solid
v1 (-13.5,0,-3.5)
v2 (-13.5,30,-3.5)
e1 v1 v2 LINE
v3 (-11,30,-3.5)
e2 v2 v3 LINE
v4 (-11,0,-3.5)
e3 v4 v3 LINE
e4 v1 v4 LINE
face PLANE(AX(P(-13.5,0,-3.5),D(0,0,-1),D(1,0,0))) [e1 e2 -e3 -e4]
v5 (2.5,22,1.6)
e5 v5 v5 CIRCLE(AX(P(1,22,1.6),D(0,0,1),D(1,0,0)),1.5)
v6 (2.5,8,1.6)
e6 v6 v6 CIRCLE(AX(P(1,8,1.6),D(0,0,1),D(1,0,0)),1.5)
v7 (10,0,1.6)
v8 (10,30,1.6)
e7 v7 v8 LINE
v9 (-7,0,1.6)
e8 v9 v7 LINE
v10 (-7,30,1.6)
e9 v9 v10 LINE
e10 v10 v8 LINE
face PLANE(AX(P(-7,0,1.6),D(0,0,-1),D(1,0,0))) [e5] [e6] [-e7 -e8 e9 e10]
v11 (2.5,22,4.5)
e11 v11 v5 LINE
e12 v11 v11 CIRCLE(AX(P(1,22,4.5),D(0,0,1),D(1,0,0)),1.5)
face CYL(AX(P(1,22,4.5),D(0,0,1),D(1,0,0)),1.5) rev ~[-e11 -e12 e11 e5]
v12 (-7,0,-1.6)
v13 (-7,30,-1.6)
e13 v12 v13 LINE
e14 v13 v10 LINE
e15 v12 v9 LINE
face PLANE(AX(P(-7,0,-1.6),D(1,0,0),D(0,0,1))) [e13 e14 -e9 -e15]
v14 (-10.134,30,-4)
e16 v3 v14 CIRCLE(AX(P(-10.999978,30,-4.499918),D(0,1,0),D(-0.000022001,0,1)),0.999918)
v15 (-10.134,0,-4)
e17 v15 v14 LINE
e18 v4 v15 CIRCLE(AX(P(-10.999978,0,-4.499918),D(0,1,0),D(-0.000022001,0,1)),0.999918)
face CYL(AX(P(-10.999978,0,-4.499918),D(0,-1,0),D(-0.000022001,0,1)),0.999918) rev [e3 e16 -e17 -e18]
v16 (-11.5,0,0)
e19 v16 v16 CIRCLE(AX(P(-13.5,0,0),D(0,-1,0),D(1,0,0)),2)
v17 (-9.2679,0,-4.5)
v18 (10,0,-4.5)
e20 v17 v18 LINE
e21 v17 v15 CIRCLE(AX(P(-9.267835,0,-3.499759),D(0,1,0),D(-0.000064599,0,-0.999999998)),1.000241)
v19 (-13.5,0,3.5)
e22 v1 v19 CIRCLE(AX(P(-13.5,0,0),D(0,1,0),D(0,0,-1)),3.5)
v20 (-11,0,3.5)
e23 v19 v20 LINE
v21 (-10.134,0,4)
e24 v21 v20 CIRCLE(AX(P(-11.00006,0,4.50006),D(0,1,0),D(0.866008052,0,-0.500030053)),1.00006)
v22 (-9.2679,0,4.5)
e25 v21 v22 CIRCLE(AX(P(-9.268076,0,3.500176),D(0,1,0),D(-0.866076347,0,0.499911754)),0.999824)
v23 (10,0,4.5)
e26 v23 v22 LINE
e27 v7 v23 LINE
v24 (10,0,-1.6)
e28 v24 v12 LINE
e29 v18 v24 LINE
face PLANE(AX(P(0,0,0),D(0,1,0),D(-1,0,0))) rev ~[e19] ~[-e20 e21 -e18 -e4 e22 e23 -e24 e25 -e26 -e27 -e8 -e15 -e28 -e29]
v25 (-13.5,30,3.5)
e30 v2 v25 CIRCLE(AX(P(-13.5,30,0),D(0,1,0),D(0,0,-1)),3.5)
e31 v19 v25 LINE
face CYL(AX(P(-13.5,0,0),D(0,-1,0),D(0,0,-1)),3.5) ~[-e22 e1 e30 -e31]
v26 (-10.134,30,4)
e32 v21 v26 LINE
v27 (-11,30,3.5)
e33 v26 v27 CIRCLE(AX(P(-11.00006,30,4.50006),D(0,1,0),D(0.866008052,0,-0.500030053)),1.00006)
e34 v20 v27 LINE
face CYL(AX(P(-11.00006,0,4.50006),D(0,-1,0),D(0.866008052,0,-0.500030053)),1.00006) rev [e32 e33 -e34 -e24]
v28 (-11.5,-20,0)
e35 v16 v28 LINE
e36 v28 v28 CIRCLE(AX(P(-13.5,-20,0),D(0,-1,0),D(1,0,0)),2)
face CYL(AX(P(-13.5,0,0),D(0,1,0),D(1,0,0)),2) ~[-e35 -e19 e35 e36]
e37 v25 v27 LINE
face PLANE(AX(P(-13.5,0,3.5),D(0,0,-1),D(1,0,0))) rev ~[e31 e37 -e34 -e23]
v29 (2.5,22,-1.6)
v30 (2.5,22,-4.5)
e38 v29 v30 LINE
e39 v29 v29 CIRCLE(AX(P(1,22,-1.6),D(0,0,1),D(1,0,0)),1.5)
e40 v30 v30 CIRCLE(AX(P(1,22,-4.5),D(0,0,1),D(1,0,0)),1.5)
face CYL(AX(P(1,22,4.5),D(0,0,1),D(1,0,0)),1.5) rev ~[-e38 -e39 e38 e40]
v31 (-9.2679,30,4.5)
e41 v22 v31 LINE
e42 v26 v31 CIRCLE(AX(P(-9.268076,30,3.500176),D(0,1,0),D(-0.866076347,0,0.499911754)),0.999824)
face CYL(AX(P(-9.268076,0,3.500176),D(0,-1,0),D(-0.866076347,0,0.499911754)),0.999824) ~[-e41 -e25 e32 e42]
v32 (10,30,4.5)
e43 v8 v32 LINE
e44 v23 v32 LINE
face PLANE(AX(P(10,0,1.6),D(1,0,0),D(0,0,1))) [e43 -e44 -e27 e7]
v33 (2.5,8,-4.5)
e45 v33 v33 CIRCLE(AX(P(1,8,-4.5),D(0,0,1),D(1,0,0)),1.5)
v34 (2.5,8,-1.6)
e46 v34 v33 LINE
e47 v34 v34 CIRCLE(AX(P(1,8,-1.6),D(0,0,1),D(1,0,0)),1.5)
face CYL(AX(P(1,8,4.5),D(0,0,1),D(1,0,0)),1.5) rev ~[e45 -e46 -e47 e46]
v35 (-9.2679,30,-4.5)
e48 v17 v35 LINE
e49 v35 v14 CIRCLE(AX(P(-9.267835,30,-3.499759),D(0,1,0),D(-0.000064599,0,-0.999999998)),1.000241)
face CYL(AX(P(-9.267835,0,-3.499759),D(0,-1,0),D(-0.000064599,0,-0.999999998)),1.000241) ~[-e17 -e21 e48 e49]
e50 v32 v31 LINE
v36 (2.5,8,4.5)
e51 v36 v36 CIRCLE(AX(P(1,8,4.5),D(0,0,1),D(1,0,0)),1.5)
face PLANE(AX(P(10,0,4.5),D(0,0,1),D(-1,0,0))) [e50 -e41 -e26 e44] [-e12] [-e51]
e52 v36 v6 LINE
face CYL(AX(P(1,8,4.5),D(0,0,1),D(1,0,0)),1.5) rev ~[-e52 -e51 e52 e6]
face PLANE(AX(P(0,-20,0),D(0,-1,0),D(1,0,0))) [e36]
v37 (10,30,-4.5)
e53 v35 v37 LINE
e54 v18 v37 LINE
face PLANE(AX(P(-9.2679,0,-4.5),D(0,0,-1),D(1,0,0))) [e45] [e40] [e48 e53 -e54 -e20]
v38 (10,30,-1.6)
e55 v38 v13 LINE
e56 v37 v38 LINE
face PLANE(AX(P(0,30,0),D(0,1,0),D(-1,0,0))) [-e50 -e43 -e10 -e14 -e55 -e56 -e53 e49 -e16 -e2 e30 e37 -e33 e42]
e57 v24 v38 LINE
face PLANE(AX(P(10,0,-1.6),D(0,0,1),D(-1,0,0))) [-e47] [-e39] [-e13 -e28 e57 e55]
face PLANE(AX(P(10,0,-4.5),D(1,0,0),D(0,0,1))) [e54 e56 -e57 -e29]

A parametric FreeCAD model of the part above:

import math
import FreeCAD as App
import Part
import Sketcher
Q = App.Units.Quantity

doc = App.newDocument("Part")
body = doc.addObject("PartDesign::Body", "Body")

sketch1 = body.newObject("Sketcher::SketchObject", "Sketch")
sketch1.AttachmentSupport = (doc.getObject("XZ_Plane"), [""])
sketch1.MapMode = "FlatFace"
sketch1.addGeometry([
    Part.LineSegment(App.Vector(10, -4.5, 0), App.Vector(-9.3, -4.5, 0)),
    Part.ArcOfCircle(Part.Circle(App.Vector(-9.3, -3.5, 0), App.Vector(0, 0, 1), 1), math.radians(-150), math.radians(-90)),
    Part.ArcOfCircle(Part.Circle(App.Vector(-11, -4.5, 0), App.Vector(0, 0, 1), 1), math.radians(30), math.radians(90)),
    Part.LineSegment(App.Vector(-11, -3.5, 0), App.Vector(-13.5, -3.5, 0)),
    Part.ArcOfCircle(Part.Circle(App.Vector(-13.5, 0, 0), App.Vector(0, 0, 1), 3.5), math.radians(90), math.radians(270)),
    Part.LineSegment(App.Vector(-13.5, 3.5, 0), App.Vector(-11, 3.5, 0)),
    Part.ArcOfCircle(Part.Circle(App.Vector(-11, 4.5, 0), App.Vector(0, 0, 1), 1), math.radians(-90), math.radians(-30)),
    Part.ArcOfCircle(Part.Circle(App.Vector(-9.3, 3.5, 0), App.Vector(0, 0, 1), 1), math.radians(90), math.radians(150)),
    Part.LineSegment(App.Vector(-9.3, 4.5, 0), App.Vector(10, 4.5, 0)),
    Part.LineSegment(App.Vector(10, 4.5, 0), App.Vector(10, 1.6, 0)),
    Part.LineSegment(App.Vector(10, 1.6, 0), App.Vector(-7, 1.6, 0)),
    Part.LineSegment(App.Vector(-7, 1.6, 0), App.Vector(-7, -1.6, 0)),
    Part.LineSegment(App.Vector(-7, -1.6, 0), App.Vector(10, -1.6, 0)),
    Part.LineSegment(App.Vector(10, -1.6, 0), App.Vector(10, -4.5, 0)),
], False)
sketch1.addConstraint([
    Sketcher.Constraint("Tangent", 0, 2, 1, 2),
    Sketcher.Constraint("Tangent", 1, 1, 2, 1),
    Sketcher.Constraint("Tangent", 2, 2, 3, 1),
    Sketcher.Constraint("Tangent", 3, 2, 4, 2),
    Sketcher.Constraint("Tangent", 4, 1, 5, 1),
    Sketcher.Constraint("Tangent", 5, 2, 6, 1),
    Sketcher.Constraint("Tangent", 6, 2, 7, 2),
    Sketcher.Constraint("Tangent", 7, 1, 8, 1),
    Sketcher.Constraint("Coincident", 8, 2, 9, 1),
    Sketcher.Constraint("Coincident", 9, 2, 10, 1),
    Sketcher.Constraint("Coincident", 10, 2, 11, 1),
    Sketcher.Constraint("Coincident", 11, 2, 12, 1),
    Sketcher.Constraint("Coincident", 12, 2, 13, 1),
    Sketcher.Constraint("Coincident", 13, 2, 0, 1),
    Sketcher.Constraint("Horizontal", 0),
    Sketcher.Constraint("Horizontal", 3),
    Sketcher.Constraint("Horizontal", 5),
    Sketcher.Constraint("Horizontal", 8),
    Sketcher.Constraint("Vertical", 9),
    Sketcher.Constraint("Horizontal", 10),
    Sketcher.Constraint("Vertical", 11),
    Sketcher.Constraint("Horizontal", 12),
    Sketcher.Constraint("Vertical", 13),
    Sketcher.Constraint("Equal", 1, 2),
    Sketcher.Constraint("Equal", 2, 6),
    Sketcher.Constraint("Equal", 6, 7),
    Sketcher.Constraint("Symmetric", 2, 3, 6, 3, -1),
    Sketcher.Constraint("Symmetric", 9, 2, 12, 2, -1),
    Sketcher.Constraint("Horizontal", 2, 3, 0, 2),
    Sketcher.Constraint("Horizontal", 7, 3, 4, 1),
    Sketcher.Constraint("Radius", 1, Q("1 mm")),
    Sketcher.Constraint("Radius", 4, Q("3.5 mm")),
    Sketcher.Constraint("DistanceY", 9, 2, 9, 1, Q("2.9 mm")),
    Sketcher.Constraint("DistanceX", 10, 2, -1, 1, Q("7 mm")),
    Sketcher.Constraint("DistanceX", 10, 2, 10, 1, Q("17 mm")),
    Sketcher.Constraint("DistanceX", 3, 2, 3, 1, Q("2.5 mm")),
    Sketcher.Constraint("DistanceX", 2, 3, -1, 1, Q("11 mm")),
])
pad1 = body.newObject("PartDesign::Pad", "Pad")
pad1.Profile = sketch1
pad1.Length = 30
pad1.Reversed = True

sketch2 = body.newObject("Sketcher::SketchObject", "Sketch001")
sketch2.AttachmentSupport = (doc.getObject("XZ_Plane"), [""])
sketch2.MapMode = "FlatFace"
sketch2.addGeometry(Part.Circle(App.Vector(-13.5, 0, 0), App.Vector(0, 0, 1), 2), False)
sketch2.addConstraint([
    Sketcher.Constraint("PointOnObject", 0, 3, -1),
    Sketcher.Constraint("Diameter", 0, Q("4 mm")),
    Sketcher.Constraint("DistanceX", 0, 3, -1, 1, Q("13.5 mm")),
])
pad2 = body.newObject("PartDesign::Pad", "Pad001")
pad2.Profile = sketch2
pad2.Length = 20

sketch3 = body.newObject("Sketcher::SketchObject", "Sketch002")
sketch3.AttachmentSupport = (doc.getObject("XY_Plane"), [""])
sketch3.MapMode = "FlatFace"
sketch3.AttachmentOffset = App.Placement(App.Vector(0, 0, 4.5), App.Rotation())
sketch3.addGeometry([
    Part.Circle(App.Vector(1, 22, 0), App.Vector(0, 0, 1), 1.5),
    Part.Circle(App.Vector(1, 8, 0), App.Vector(0, 0, 1), 1.5),
], False)
sketch3.addConstraint([
    Sketcher.Constraint("Equal", 0, 1),
    Sketcher.Constraint("Vertical", 0, 3, 1, 3),
    Sketcher.Constraint("Diameter", 0, Q("3 mm")),
    Sketcher.Constraint("DistanceY", -1, 1, 1, 3, Q("8 mm")),
    Sketcher.Constraint("DistanceX", -1, 1, 0, 3, Q("1 mm")),
    Sketcher.Constraint("DistanceY", -1, 1, 0, 3, Q("22 mm")),
])
pocket1 = body.newObject("PartDesign::Pocket", "Pocket")
pocket1.Profile = sketch3
pocket1.Length = 20

doc.recompute()
